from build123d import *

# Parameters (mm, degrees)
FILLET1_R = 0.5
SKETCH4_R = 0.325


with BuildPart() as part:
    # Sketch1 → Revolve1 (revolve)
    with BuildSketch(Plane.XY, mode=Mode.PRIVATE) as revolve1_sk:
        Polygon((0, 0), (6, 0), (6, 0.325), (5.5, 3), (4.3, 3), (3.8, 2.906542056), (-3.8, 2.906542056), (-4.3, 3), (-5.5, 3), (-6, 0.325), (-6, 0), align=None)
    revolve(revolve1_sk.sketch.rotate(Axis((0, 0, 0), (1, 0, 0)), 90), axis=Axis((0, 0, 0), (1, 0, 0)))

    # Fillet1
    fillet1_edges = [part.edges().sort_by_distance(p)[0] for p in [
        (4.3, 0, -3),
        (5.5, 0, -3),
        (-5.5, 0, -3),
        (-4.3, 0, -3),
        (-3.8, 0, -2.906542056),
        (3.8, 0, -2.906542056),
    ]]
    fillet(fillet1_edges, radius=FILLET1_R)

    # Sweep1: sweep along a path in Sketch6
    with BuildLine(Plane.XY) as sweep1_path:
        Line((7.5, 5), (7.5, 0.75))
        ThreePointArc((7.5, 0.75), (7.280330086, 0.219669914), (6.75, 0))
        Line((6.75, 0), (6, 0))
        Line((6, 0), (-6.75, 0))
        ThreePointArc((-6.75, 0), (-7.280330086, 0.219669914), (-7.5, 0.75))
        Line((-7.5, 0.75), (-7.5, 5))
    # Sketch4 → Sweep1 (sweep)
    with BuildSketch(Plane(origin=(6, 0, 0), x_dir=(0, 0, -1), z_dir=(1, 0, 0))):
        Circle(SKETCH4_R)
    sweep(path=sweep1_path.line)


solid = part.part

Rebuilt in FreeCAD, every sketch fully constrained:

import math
import FreeCAD as App
import Part
import Sketcher

V = App.Vector
Q = App.Units.Quantity


def edges_at(feature, points):
    """Names of the edges that pass closest to the given points."""
    edges = feature.Shape.Edges
    near = lambda p: min(range(len(edges)), key=lambda i: edges[i].distToShape(Part.Vertex(*p))[0])
    return sorted({f"Edge{near(p) + 1}" for p in points})

doc = App.newDocument("Part")
body = doc.addObject("PartDesign::Body", "Body")

# Sketch on XY plane
sketch1 = body.newObject("Sketcher::SketchObject", "Sketch")
sketch1.AttachmentSupport = (doc.getObject("XY_Plane"), [""])
sketch1.MapMode = "FlatFace"
sketch1.addGeometry(Part.LineSegment(V(6, 0, 0), V(6, 0.325, 0)), False)
sketch1.addGeometry(Part.LineSegment(V(6, 0.325, 0), V(5.5, 3, 0)), False)
sketch1.addGeometry(Part.LineSegment(V(5.5, 3, 0), V(4.3, 3, 0)), False)
sketch1.addGeometry(Part.LineSegment(V(4.3, 3, 0), V(3.8, 2.906542, 0)), False)
sketch1.addGeometry(Part.LineSegment(V(3.8, 2.906542, 0), V(-3.8, 2.906542, 0)), False)
sketch1.addGeometry(Part.LineSegment(V(-3.8, 2.906542, 0), V(-4.3, 3, 0)), False)
sketch1.addGeometry(Part.LineSegment(V(-4.3, 3, 0), V(-5.5, 3, 0)), False)
sketch1.addGeometry(Part.LineSegment(V(-5.5, 3, 0), V(-6, 0.325, 0)), False)
sketch1.addGeometry(Part.LineSegment(V(-6, 0.325, 0), V(-6, 0, 0)), False)
sketch1.addGeometry(Part.LineSegment(V(-6, 0, 0), V(6, 0, 0)), False)
sketch1.addConstraint(Sketcher.Constraint("Coincident", 0, 2, 1, 1))
sketch1.addConstraint(Sketcher.Constraint("Coincident", 1, 2, 2, 1))
sketch1.addConstraint(Sketcher.Constraint("Coincident", 2, 2, 3, 1))
sketch1.addConstraint(Sketcher.Constraint("Coincident", 3, 2, 4, 1))
sketch1.addConstraint(Sketcher.Constraint("Coincident", 4, 2, 5, 1))
sketch1.addConstraint(Sketcher.Constraint("Coincident", 5, 2, 6, 1))
sketch1.addConstraint(Sketcher.Constraint("Coincident", 6, 2, 7, 1))
sketch1.addConstraint(Sketcher.Constraint("Coincident", 7, 2, 8, 1))
sketch1.addConstraint(Sketcher.Constraint("Coincident", 8, 2, 9, 1))
sketch1.addConstraint(Sketcher.Constraint("Coincident", 9, 2, 0, 1))
sketch1.addConstraint(Sketcher.Constraint("Vertical", 0))
sketch1.addConstraint(Sketcher.Constraint("Horizontal", 2))
sketch1.addConstraint(Sketcher.Constraint("Horizontal", 4))
sketch1.addConstraint(Sketcher.Constraint("Horizontal", 6))
sketch1.addConstraint(Sketcher.Constraint("Vertical", 8))
sketch1.addConstraint(Sketcher.Constraint("Horizontal", 9))
sketch1.addConstraint(Sketcher.Constraint("Symmetric", 8, 2, 9, 2, -1, 1))
sketch1.addConstraint(Sketcher.Constraint("Symmetric", 2, 2, 5, 2, -2))
sketch1.addConstraint(Sketcher.Constraint("Perpendicular", 1, 3))
sketch1.addConstraint(Sketcher.Constraint("Perpendicular", 5, 7))
sketch1.addConstraint(Sketcher.Constraint("Horizontal", 0, 2, 7, 2))
sketch1.addConstraint(Sketcher.Constraint("Equal", 2, 6))
sketch1.addConstraint(Sketcher.Constraint("DistanceX", 9, 1, 9, 2, Q("12 mm")))
sketch1.addConstraint(Sketcher.Constraint("DistanceX", 2, 2, 2, 1, Q("1.2 mm")))
sketch1.addConstraint(Sketcher.Constraint("DistanceX", 4, 2, 4, 1, Q("7.6 mm")))
sketch1.addConstraint(Sketcher.Constraint("DistanceY", -1, 1, 1, 2, Q("3 mm")))
sketch1.addConstraint(Sketcher.Constraint("DistanceX", 6, 2, 1, 2, Q("11 mm")))
sketch1.addConstraint(Sketcher.Constraint("DistanceY", 0, 1, 0, 2, Q("0.325 mm")))
revolution = body.newObject("PartDesign::Revolution", "Revolution")
revolution.Profile = sketch1
revolution.ReferenceAxis = (sketch1, ["H_Axis"])
revolution.Angle = 360
doc.recompute()

fillet = body.newObject("PartDesign::Fillet", "Fillet")
fillet.Base = (revolution, edges_at(revolution, [
    (4.3, 0, -3),
    (5.5, 0, -3),
    (-5.5, 0, -3),
    (-4.3, 0, -3),
    (-3.8, 0, -2.907),
    (3.8, 0, -2.907),
]))
fillet.Radius = 0.5

# Sketch on YZ plane
sketch2 = body.newObject("Sketcher::SketchObject", "Sketch001")
sketch2.AttachmentSupport = (doc.getObject("YZ_Plane"), [""])
sketch2.MapMode = "FlatFace"
sketch2.AttachmentOffset = App.Placement(V(0, 0, 6), App.Rotation())
sketch2.addGeometry(Part.Circle(V(0, 0, 0), V(0, 0, 1), 0.325), False)
sketch2.addConstraint(Sketcher.Constraint("Coincident", 0, 3, -1, 1))
sketch2.addConstraint(Sketcher.Constraint("Diameter", 0, Q("0.65 mm")))

# Sketch on XY plane
sketch3 = body.newObject("Sketcher::SketchObject", "Sketch002")
sketch3.AttachmentSupport = (doc.getObject("XY_Plane"), [""])
sketch3.MapMode = "FlatFace"
sketch3.addGeometry(Part.LineSegment(V(7.5, 5, 0), V(7.5, 0.75, 0)), False)
sketch3.addGeometry(Part.ArcOfCircle(Part.Circle(V(6.75, 0.75, 0), V(0, 0, 1), 0.75), math.radians(-90), math.radians(0)), False)
sketch3.addGeometry(Part.LineSegment(V(6.75, 0, 0), V(-6.75, 0, 0)), False)
sketch3.addGeometry(Part.ArcOfCircle(Part.Circle(V(-6.75, 0.75, 0), V(0, 0, 1), 0.75), math.radians(180), math.radians(270)), False)
sketch3.addGeometry(Part.LineSegment(V(-7.5, 0.75, 0), V(-7.5, 5, 0)), False)
sketch3.addConstraint(Sketcher.Constraint("Tangent", 0, 2, 1, 2))
sketch3.addConstraint(Sketcher.Constraint("Tangent", 1, 1, 2, 1))
sketch3.addConstraint(Sketcher.Constraint("Tangent", 2, 2, 3, 2))
sketch3.addConstraint(Sketcher.Constraint("Tangent", 3, 1, 4, 1))
sketch3.addConstraint(Sketcher.Constraint("Vertical", 0))
sketch3.addConstraint(Sketcher.Constraint("Horizontal", 2))
sketch3.addConstraint(Sketcher.Constraint("Vertical", 4))
sketch3.addConstraint(Sketcher.Constraint("Equal", 1, 3))
sketch3.addConstraint(Sketcher.Constraint("Symmetric", 1, 1, 2, 2, -1, 1))
sketch3.addConstraint(Sketcher.Constraint("Horizontal", 0, 1, 4, 2))
sketch3.addConstraint(Sketcher.Constraint("Radius", 1, Q("0.75 mm")))
sketch3.addConstraint(Sketcher.Constraint("DistanceX", 2, 2, 2, 1, Q("13.5 mm")))
sketch3.addConstraint(Sketcher.Constraint("DistanceY", -1, 1, 0, 1, Q("5 mm")))
doc.recompute()

additivepipe = body.newObject("PartDesign::AdditivePipe", "AdditivePipe")
additivepipe.Profile = sketch2
additivepipe.Spine = (sketch3, ["Edge1", "Edge2", "Edge3", "Edge4", "Edge5"])

doc.recompute()
